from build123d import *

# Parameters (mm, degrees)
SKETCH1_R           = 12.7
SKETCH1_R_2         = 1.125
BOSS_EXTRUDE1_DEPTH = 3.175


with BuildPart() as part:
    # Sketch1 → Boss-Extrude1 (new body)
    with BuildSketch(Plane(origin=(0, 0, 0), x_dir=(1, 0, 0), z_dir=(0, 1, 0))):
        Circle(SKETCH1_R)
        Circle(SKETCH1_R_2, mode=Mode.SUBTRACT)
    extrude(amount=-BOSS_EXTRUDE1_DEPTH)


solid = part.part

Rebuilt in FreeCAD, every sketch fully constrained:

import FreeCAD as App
import Part
import Sketcher

V = App.Vector
Q = App.Units.Quantity

doc = App.newDocument("Part")
body = doc.addObject("PartDesign::Body", "Body")

# Sketch on XZ plane
sketch1 = body.newObject("Sketcher::SketchObject", "Sketch")
sketch1.AttachmentSupport = (doc.getObject("XZ_Plane"), [""])
sketch1.MapMode = "FlatFace"
sketch1.addGeometry([
    Part.Circle(V(0, 0, 0), V(0, 0, 1), 12.7),
    Part.Circle(V(0, 0, 0), V(0, 0, 1), 1.1),
], False)
sketch1.addConstraint([
    Sketcher.Constraint("Coincident", 0, 3, -1, 1),
    Sketcher.Constraint("Coincident", 1, 3, -1, 1),
    Sketcher.Constraint("Diameter", 0, Q("1 in")),
    Sketcher.Constraint("Diameter", 1, Q("2.25 mm")),
])
pad1 = body.newObject("PartDesign::Pad", "Pad")
pad1.Profile = sketch1
pad1.Length = Q("0.125 in")

doc.recompute()
